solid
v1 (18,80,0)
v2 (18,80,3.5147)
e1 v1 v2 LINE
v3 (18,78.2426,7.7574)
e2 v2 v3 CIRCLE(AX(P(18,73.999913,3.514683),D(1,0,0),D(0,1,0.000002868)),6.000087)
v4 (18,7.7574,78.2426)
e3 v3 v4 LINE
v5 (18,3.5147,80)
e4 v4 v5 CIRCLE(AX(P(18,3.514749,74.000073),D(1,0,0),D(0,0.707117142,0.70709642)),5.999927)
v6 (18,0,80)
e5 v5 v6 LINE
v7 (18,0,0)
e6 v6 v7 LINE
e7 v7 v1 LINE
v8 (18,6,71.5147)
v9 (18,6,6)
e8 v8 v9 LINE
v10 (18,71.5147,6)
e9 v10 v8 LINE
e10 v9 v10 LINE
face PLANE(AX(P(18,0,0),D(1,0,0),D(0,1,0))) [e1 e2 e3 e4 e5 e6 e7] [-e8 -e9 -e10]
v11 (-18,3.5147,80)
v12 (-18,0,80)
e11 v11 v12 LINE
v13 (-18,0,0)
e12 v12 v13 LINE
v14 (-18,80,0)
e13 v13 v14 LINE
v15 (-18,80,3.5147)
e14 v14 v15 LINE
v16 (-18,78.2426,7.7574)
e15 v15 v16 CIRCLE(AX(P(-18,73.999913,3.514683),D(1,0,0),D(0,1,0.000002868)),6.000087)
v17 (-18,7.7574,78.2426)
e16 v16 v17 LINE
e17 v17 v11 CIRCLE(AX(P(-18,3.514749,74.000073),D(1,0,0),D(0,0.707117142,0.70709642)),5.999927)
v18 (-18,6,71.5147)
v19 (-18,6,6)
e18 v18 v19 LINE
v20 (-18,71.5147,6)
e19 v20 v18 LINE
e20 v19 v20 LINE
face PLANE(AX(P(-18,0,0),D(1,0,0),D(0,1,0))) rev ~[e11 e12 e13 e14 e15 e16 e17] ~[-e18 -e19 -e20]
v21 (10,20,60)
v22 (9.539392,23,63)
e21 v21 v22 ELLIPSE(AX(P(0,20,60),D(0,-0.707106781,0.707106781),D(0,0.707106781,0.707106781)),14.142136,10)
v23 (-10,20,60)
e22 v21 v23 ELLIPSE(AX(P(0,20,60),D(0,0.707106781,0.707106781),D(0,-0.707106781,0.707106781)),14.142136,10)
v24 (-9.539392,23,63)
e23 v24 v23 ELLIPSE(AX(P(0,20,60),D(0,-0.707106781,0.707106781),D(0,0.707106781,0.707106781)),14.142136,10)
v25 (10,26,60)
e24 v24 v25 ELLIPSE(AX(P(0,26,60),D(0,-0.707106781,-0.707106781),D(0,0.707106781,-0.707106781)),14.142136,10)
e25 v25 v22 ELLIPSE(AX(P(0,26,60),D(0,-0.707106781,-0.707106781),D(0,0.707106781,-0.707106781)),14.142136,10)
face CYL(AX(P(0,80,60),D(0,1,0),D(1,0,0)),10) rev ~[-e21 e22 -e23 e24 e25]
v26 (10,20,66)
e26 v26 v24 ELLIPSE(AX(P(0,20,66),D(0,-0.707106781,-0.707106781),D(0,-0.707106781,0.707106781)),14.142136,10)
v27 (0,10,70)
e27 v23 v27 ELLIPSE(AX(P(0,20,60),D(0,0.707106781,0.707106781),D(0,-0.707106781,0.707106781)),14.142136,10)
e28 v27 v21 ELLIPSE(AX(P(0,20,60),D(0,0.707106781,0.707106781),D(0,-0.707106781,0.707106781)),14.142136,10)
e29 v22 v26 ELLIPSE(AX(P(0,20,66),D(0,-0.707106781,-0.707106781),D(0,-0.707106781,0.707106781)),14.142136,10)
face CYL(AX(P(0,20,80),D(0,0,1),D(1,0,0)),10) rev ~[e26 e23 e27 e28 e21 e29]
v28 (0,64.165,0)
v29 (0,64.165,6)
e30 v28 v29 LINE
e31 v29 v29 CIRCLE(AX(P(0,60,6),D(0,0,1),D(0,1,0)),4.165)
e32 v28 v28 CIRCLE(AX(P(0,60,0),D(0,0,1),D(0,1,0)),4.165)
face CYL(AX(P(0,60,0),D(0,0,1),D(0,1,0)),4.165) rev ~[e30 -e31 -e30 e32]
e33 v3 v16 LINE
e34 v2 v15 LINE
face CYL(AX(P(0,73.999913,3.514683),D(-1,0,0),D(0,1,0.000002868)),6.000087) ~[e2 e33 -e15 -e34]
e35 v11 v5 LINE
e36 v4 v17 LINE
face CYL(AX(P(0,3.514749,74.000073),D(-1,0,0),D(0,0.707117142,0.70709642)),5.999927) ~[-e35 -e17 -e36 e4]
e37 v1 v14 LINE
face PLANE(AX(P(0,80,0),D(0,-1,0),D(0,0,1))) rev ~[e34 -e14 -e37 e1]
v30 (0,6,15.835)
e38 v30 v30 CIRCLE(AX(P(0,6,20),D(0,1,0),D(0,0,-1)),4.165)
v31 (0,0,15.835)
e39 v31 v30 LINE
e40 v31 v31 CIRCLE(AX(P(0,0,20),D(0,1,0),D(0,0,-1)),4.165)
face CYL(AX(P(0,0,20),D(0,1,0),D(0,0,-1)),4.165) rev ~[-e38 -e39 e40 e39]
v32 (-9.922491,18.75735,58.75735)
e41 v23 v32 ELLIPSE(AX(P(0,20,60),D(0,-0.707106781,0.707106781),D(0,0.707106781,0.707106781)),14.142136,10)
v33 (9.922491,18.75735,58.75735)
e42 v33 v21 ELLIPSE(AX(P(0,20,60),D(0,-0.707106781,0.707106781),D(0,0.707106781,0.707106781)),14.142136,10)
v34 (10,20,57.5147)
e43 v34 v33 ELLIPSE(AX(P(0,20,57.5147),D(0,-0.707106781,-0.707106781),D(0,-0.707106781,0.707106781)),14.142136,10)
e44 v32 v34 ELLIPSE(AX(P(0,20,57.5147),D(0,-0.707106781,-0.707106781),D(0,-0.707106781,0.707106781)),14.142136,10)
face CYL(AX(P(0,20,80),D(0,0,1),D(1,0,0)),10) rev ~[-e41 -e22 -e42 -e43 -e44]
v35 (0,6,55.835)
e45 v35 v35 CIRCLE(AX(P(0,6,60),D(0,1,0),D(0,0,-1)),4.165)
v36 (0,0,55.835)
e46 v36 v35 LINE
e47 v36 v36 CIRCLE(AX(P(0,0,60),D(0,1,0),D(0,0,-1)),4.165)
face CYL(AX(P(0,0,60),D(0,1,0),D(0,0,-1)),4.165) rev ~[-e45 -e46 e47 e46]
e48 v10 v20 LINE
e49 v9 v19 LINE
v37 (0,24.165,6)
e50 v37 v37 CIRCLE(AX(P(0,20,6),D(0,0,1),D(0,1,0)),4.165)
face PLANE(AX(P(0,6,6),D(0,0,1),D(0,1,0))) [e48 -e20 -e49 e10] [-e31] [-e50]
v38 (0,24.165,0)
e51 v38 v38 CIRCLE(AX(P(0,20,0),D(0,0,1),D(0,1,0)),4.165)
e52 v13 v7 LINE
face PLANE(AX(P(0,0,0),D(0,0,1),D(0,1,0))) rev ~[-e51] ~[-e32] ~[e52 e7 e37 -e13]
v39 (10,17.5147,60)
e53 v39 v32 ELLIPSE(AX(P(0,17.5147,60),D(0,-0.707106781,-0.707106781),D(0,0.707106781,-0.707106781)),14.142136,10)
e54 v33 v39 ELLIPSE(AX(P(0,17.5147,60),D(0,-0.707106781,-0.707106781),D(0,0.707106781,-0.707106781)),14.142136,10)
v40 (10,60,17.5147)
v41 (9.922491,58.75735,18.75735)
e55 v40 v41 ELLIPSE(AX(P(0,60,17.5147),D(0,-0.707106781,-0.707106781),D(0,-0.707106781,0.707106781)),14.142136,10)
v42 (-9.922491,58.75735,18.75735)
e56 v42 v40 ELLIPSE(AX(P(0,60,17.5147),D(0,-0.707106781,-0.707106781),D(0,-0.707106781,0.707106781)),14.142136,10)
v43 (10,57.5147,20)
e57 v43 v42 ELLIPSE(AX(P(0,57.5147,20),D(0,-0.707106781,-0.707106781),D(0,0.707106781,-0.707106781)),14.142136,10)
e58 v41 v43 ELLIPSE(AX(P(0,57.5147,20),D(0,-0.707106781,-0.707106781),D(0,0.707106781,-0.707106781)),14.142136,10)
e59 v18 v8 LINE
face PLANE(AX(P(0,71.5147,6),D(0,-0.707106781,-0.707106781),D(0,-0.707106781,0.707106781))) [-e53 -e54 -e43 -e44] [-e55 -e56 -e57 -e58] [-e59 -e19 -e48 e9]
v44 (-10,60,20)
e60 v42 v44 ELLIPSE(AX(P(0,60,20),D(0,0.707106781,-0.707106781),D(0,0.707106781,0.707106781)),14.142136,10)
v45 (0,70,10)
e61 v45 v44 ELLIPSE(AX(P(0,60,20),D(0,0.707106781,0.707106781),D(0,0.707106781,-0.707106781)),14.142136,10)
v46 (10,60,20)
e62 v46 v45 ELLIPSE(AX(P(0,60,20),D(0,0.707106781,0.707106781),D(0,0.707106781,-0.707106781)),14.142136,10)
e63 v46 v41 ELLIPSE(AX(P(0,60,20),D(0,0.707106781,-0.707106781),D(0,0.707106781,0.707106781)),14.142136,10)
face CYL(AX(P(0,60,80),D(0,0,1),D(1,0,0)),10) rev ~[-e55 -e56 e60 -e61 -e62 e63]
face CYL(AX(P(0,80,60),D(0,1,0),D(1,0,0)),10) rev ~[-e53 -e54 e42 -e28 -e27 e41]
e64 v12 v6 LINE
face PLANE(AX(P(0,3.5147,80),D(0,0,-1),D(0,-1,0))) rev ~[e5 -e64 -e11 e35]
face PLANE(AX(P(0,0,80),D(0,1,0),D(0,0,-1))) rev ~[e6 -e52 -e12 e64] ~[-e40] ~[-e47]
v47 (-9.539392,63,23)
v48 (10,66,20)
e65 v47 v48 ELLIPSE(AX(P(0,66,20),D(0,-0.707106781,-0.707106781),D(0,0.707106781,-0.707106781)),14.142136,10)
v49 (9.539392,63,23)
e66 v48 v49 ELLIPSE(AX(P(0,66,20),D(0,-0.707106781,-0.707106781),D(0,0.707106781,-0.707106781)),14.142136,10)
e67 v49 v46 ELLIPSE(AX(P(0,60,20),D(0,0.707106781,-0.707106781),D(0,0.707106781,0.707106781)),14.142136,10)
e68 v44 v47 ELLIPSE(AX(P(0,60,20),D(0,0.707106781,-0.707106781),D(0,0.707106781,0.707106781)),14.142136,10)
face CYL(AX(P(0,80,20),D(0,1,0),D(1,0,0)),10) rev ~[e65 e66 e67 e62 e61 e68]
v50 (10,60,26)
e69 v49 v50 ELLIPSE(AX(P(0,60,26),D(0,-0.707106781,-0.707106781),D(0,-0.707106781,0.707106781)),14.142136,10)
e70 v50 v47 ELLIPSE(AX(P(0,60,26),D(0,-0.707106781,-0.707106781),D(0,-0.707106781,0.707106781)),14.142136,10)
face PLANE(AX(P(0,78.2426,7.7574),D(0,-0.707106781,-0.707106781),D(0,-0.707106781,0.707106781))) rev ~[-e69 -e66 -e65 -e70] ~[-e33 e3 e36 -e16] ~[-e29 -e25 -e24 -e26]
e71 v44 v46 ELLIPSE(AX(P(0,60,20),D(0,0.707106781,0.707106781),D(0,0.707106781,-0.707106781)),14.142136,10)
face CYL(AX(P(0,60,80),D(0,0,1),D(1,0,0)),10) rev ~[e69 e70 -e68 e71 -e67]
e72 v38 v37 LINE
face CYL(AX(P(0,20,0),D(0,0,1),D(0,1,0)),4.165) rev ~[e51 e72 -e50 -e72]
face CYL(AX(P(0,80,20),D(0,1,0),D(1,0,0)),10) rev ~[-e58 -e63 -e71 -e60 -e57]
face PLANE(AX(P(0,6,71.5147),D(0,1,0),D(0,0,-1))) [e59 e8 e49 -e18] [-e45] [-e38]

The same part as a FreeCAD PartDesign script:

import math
import FreeCAD as App
import Part
import Sketcher
from FreeCAD import Vector


def add_polygon(sketch, points):
    """Adds a closed chain of lines whose ends are joined by coincident constraints."""
    first, n = sketch.GeometryCount, len(points)
    for a, b in zip(points, points[1:] + points[:1]):
        sketch.addGeometry(Part.LineSegment(App.Vector(*a, 0), App.Vector(*b, 0)), False)
    for i in range(n):
        sketch.addConstraint(Sketcher.Constraint("Coincident", first + i, 2, first + (i + 1) % n, 1))

doc = App.newDocument("Part")
body = doc.addObject("PartDesign::Body", "Body")

sketch1 = doc.addObject("Sketcher::SketchObject", "Sketch")
body.addObject(sketch1)
sketch1.AttachmentSupport = (doc.YZ_Plane, [""])
sketch1.MapMode = "FlatFace"
sketch1.addGeometry(Part.ArcOfCircle(Part.Circle(Vector(3.5, 74, 0), Vector(0, 0, 1), 6), math.radians(45), math.radians(90)), False)
sketch1.addGeometry(Part.LineSegment(Vector(3.5, 80, 0), Vector(0, 80, 0)), False)
sketch1.addGeometry(Part.LineSegment(Vector(0, 80, 0), Vector(0, 0, 0)), False)
sketch1.addGeometry(Part.LineSegment(Vector(0, 0, 0), Vector(80, 0, 0)), False)
sketch1.addGeometry(Part.LineSegment(Vector(80, 0, 0), Vector(80, 3.5, 0)), False)
sketch1.addGeometry(Part.ArcOfCircle(Part.Circle(Vector(74, 3.5, 0), Vector(0, 0, 1), 6), math.radians(0), math.radians(45)), False)
sketch1.addGeometry(Part.LineSegment(Vector(78.2, 7.8, 0), Vector(7.8, 78.2, 0)), False)
add_polygon(sketch1, [(6, 6), (6, 71.5), (71.5, 6)])
sketch1.addConstraint([
    Sketcher.Constraint("Tangent", 0, 2, 1, 1),
    Sketcher.Constraint("Coincident", 1, 2, 2, 1),
    Sketcher.Constraint("Coincident", 2, 2, 3, 1),
    Sketcher.Constraint("Coincident", 3, 2, 4, 1),
    Sketcher.Constraint("Tangent", 4, 2, 5, 1),
    Sketcher.Constraint("Tangent", 5, 2, 6, 1),
    Sketcher.Constraint("Tangent", 6, 2, 0, 1),
    Sketcher.Constraint("Horizontal", 1),
    Sketcher.Constraint("Vertical", 2),
    Sketcher.Constraint("Horizontal", 3),
    Sketcher.Constraint("Vertical", 4),
    Sketcher.Constraint("Vertical", 7),
    Sketcher.Constraint("Horizontal", 9),
    Sketcher.Constraint("Coincident", 2, 2, -1, 1),
    Sketcher.Constraint("Equal", 0, 5),
    Sketcher.Constraint("Parallel", 6, 8),
    Sketcher.Constraint("Equal", 3, 2),
    Sketcher.Constraint("Equal", 1, 4),
    Sketcher.Constraint("Radius", 0, 6.0),
    Sketcher.Constraint("DistanceX", 3, 1, 3, 2, 80.0),
    Sketcher.Constraint("DistanceX", -1, 1, 7, 2, 6.0),
    Sketcher.Constraint("DistanceY", -1, 1, 8, 2, 6.0),
    Sketcher.Constraint("DistanceX", 1, 2, 1, 1, 3.5147),
    Sketcher.Constraint("DistanceX", 9, 2, 9, 1, 65.5147),
])
pad1 = doc.addObject("PartDesign::Pad", "Pad")
body.addObject(pad1)
pad1.Profile = sketch1
pad1.Length = 36
pad1.Midplane = True

sketch2 = doc.addObject("Sketcher::SketchObject", "Sketch001")
body.addObject(sketch2)
sketch2.AttachmentSupport = (doc.XZ_Plane, [""])
sketch2.MapMode = "FlatFace"
sketch2.addGeometry(Part.Circle(Vector(0, 20, 0), Vector(0, 0, 1), 4.2), False)
sketch2.addConstraint([
    Sketcher.Constraint("PointOnObject", 0, 3, -2),
    Sketcher.Constraint("Diameter", 0, 8.33),
    Sketcher.Constraint("DistanceY", -1, 1, 0, 3, 20.0),
])
doc.recompute()
hole = doc.addObject("PartDesign::Hole", "Hole")
body.addObject(hole)
hole.Profile = sketch2
hole.ThreadType = "None"
hole.Diameter = 8.33
hole.DepthType = "Dimension"
hole.Depth = 6
hole.DrillPoint = "Flat"

sketch3 = doc.addObject("Sketcher::SketchObject", "Sketch002")
body.addObject(sketch3)
sketch3.AttachmentSupport = (doc.XY_Plane, [""])
sketch3.MapMode = "FlatFace"
sketch3.addGeometry(Part.Circle(Vector(0, 20, 0), Vector(0, 0, 1), 4.2), False)
sketch3.addConstraint([
    Sketcher.Constraint("PointOnObject", 0, 3, -2),
    Sketcher.Constraint("Diameter", 0, 8.33),
    Sketcher.Constraint("DistanceY", -1, 1, 0, 3, 20.0),
])
doc.recompute()
hole2 = doc.addObject("PartDesign::Hole", "Hole001")
body.addObject(hole2)
hole2.Profile = sketch3
hole2.ThreadType = "None"
hole2.Diameter = 8.33
hole2.DepthType = "Dimension"
hole2.Depth = 6
hole2.DrillPoint = "Flat"
hole2.Reversed = True

sketch4 = doc.addObject("Sketcher::SketchObject", "Sketch003")
body.addObject(sketch4)
sketch4.AttachmentSupport = (doc.XY_Plane, [""])
sketch4.MapMode = "FlatFace"
sketch4.AttachmentOffset = App.Placement(Vector(0, 0, 80), App.Rotation())
sketch4.addGeometry(Part.Circle(Vector(0, 20, 0), Vector(0, 0, 1), 10), False)
sketch4.addConstraint([
    Sketcher.Constraint("PointOnObject", 0, 3, -2),
    Sketcher.Constraint("Diameter", 0, 20.0),
    Sketcher.Constraint("DistanceY", -1, 1, 0, 3, 20.0),
])
pocket1 = doc.addObject("PartDesign::Pocket", "Pocket")
body.addObject(pocket1)
pocket1.Profile = sketch4
pocket1.Length = 74

sketch5 = doc.addObject("Sketcher::SketchObject", "Sketch004")
body.addObject(sketch5)
sketch5.AttachmentSupport = (doc.XZ_Plane, [""])
sketch5.MapMode = "FlatFace"
sketch5.AttachmentOffset = App.Placement(Vector(0, 0, -80), App.Rotation())
sketch5.addGeometry(Part.Circle(Vector(0, 20, 0), Vector(0, 0, 1), 10), False)
sketch5.addConstraint([
    Sketcher.Constraint("PointOnObject", 0, 3, -2),
    Sketcher.Constraint("Diameter", 0, 20.0),
    Sketcher.Constraint("DistanceY", -1, 1, 0, 3, 20.0),
])
pocket2 = doc.addObject("PartDesign::Pocket", "Pocket001")
body.addObject(pocket2)
pocket2.Profile = sketch5
pocket2.Length = 74
pocket2.Reversed = True

sketch6 = doc.addObject("Sketcher::SketchObject", "Sketch005")
body.addObject(sketch6)
sketch6.AttachmentSupport = (doc.XY_Plane, [""])
sketch6.MapMode = "FlatFace"
sketch6.addGeometry(Part.Circle(Vector(0, 60, 0), Vector(0, 0, 1), 4.2), False)
sketch6.addConstraint([
    Sketcher.Constraint("PointOnObject", 0, 3, -2),
    Sketcher.Constraint("Diameter", 0, 8.33),
    Sketcher.Constraint("DistanceY", -1, 1, 0, 3, 60.0),
])
doc.recompute()
hole3 = doc.addObject("PartDesign::Hole", "Hole002")
body.addObject(hole3)
hole3.Profile = sketch6
hole3.ThreadType = "None"
hole3.Diameter = 8.33
hole3.DepthType = "Dimension"
hole3.Depth = 6
hole3.DrillPoint = "Flat"
hole3.Reversed = True

sketch7 = doc.addObject("Sketcher::SketchObject", "Sketch006")
body.addObject(sketch7)
sketch7.AttachmentSupport = (doc.XZ_Plane, [""])
sketch7.MapMode = "FlatFace"
sketch7.addGeometry(Part.Circle(Vector(0, 60, 0), Vector(0, 0, 1), 4.2), False)
sketch7.addConstraint([
    Sketcher.Constraint("PointOnObject", 0, 3, -2),
    Sketcher.Constraint("Diameter", 0, 8.33),
    Sketcher.Constraint("DistanceY", -1, 1, 0, 3, 60.0),
])
doc.recompute()
hole4 = doc.addObject("PartDesign::Hole", "Hole003")
body.addObject(hole4)
hole4.Profile = sketch7
hole4.ThreadType = "None"
hole4.Diameter = 8.33
hole4.DepthType = "Dimension"
hole4.Depth = 6
hole4.DrillPoint = "Flat"

sketch8 = doc.addObject("Sketcher::SketchObject", "Sketch007")
body.addObject(sketch8)
sketch8.AttachmentSupport = (doc.XY_Plane, [""])
sketch8.MapMode = "FlatFace"
sketch8.AttachmentOffset = App.Placement(Vector(0, 0, 80), App.Rotation())
sketch8.addGeometry(Part.Circle(Vector(0, 60, 0), Vector(0, 0, 1), 10), False)
sketch8.addConstraint([
    Sketcher.Constraint("PointOnObject", 0, 3, -2),
    Sketcher.Constraint("Diameter", 0, 20.0),
    Sketcher.Constraint("DistanceY", -1, 1, 0, 3, 60.0),
])
pocket3 = doc.addObject("PartDesign::Pocket", "Pocket002")
body.addObject(pocket3)
pocket3.Profile = sketch8
pocket3.Length = 74

sketch9 = doc.addObject("Sketcher::SketchObject", "Sketch008")
body.addObject(sketch9)
sketch9.AttachmentSupport = (doc.XZ_Plane, [""])
sketch9.MapMode = "FlatFace"
sketch9.AttachmentOffset = App.Placement(Vector(0, 0, -80), App.Rotation())
sketch9.addGeometry(Part.Circle(Vector(0, 60, 0), Vector(0, 0, 1), 10), False)
sketch9.addConstraint([
    Sketcher.Constraint("PointOnObject", 0, 3, -2),
    Sketcher.Constraint("Diameter", 0, 20.0),
    Sketcher.Constraint("DistanceY", -1, 1, 0, 3, 60.0),
])
pocket4 = doc.addObject("PartDesign::Pocket", "Pocket003")
body.addObject(pocket4)
pocket4.Profile = sketch9
pocket4.Length = 74
pocket4.Reversed = True

doc.recompute()
